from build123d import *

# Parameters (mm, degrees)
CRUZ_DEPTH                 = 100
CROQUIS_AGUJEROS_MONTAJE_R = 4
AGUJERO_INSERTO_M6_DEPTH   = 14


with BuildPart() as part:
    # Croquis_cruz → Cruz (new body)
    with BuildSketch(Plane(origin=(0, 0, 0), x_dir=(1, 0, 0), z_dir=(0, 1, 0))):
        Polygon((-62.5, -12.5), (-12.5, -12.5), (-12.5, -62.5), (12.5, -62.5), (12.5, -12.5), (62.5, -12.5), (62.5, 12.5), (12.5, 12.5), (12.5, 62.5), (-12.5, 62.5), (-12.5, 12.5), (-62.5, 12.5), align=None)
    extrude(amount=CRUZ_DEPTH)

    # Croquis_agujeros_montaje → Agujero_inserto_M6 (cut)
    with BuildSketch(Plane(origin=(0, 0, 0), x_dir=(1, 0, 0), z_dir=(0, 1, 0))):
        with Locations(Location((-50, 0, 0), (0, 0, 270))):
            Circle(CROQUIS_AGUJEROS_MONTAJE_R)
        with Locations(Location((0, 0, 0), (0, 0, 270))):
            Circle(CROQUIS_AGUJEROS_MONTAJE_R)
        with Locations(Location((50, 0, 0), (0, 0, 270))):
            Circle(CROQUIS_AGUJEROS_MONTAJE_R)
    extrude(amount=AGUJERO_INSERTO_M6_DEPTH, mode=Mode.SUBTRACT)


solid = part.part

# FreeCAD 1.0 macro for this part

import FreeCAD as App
import Part
import Sketcher
from FreeCAD import Vector

doc = App.newDocument("Part")
body = doc.addObject("PartDesign::Body", "Body")

# Sketch on XZ plane
sketch1 = body.newObject("Sketcher::SketchObject", "Sketch")
sketch1.AttachmentSupport = (doc.getObject("XZ_Plane"), [""])
sketch1.MapMode = "FlatFace"
sketch1.addGeometry([
    Part.LineSegment(Vector(-62, 12, 0), Vector(-12, 12, 0)),  # 0
    Part.LineSegment(Vector(-12, 12, 0), Vector(-12, 62, 0)),  # 1
    Part.LineSegment(Vector(-12, 62, 0), Vector(12, 62, 0)),  # 2
    Part.LineSegment(Vector(12, 62, 0), Vector(12, 12, 0)),  # 3
    Part.LineSegment(Vector(12, 12, 0), Vector(62, 12, 0)),  # 4
    Part.LineSegment(Vector(62, 12, 0), Vector(62, -12, 0)),  # 5
    Part.LineSegment(Vector(62, -12, 0), Vector(12, -12, 0)),  # 6
    Part.LineSegment(Vector(12, -12, 0), Vector(12, -62, 0)),  # 7
    Part.LineSegment(Vector(12, -62, 0), Vector(-12, -62, 0)),  # 8
    Part.LineSegment(Vector(-12, -62, 0), Vector(-12, -12, 0)),  # 9
    Part.LineSegment(Vector(-12, -12, 0), Vector(-62, -12, 0)),  # 10
    Part.LineSegment(Vector(-62, -12, 0), Vector(-62, 12, 0)),  # 11
], False)
sketch1.addConstraint([
    Sketcher.Constraint("Coincident", 0, 2, 1, 1),
    Sketcher.Constraint("Coincident", 1, 2, 2, 1),
    Sketcher.Constraint("Coincident", 2, 2, 3, 1),
    Sketcher.Constraint("Coincident", 3, 2, 4, 1),
    Sketcher.Constraint("Coincident", 4, 2, 5, 1),
    Sketcher.Constraint("Coincident", 5, 2, 6, 1),
    Sketcher.Constraint("Coincident", 6, 2, 7, 1),
    Sketcher.Constraint("Coincident", 7, 2, 8, 1),
    Sketcher.Constraint("Coincident", 8, 2, 9, 1),
    Sketcher.Constraint("Coincident", 9, 2, 10, 1),
    Sketcher.Constraint("Coincident", 10, 2, 11, 1),
    Sketcher.Constraint("Coincident", 11, 2, 0, 1),
    Sketcher.Constraint("Horizontal", 0),
    Sketcher.Constraint("Vertical", 1),
    Sketcher.Constraint("Horizontal", 2),
    Sketcher.Constraint("Vertical", 3),
    Sketcher.Constraint("Horizontal", 4),
    Sketcher.Constraint("Vertical", 5),
    Sketcher.Constraint("Horizontal", 6),
    Sketcher.Constraint("Vertical", 7),
    Sketcher.Constraint("Horizontal", 8),
    Sketcher.Constraint("Vertical", 9),
    Sketcher.Constraint("Horizontal", 10),
    Sketcher.Constraint("Vertical", 11),
    Sketcher.Constraint("Symmetric", 0, 2, 6, 2, -1, 1),
    Sketcher.Constraint("Symmetric", 2, 2, 8, 2, -1, 1),
    Sketcher.Constraint("Symmetric", 4, 2, 10, 2, -1, 1),
    Sketcher.Constraint("Symmetric", 0, 2, 3, 2, -2),
    Sketcher.Constraint("Equal", 10, 1),
    Sketcher.Constraint("Equal", 8, 5),
    Sketcher.Constraint("DistanceX", 0, 1, 0, 2, 50.0),
    Sketcher.Constraint("DistanceX", 2, 1, 2, 2, 25.0),
])
pad1 = body.newObject("PartDesign::Pad", "Pad")
pad1.Profile = sketch1
pad1.Length = 100
pad1.Reversed = True

# Sketch on XZ plane
sketch2 = body.newObject("Sketcher::SketchObject", "Sketch001")
sketch2.AttachmentSupport = (doc.getObject("XZ_Plane"), [""])
sketch2.MapMode = "FlatFace"
sketch2.addGeometry([
    Part.Circle(Vector(-50, 0, 0), Vector(0, 0, 1), 4),
    Part.Circle(Vector(0, 0, 0), Vector(0, 0, 1), 4),
    Part.Circle(Vector(50, 0, 0), Vector(0, 0, 1), 4),
], False)
sketch2.addConstraint([
    Sketcher.Constraint("Coincident", 1, 3, -1, 1),
    Sketcher.Constraint("Equal", 0, 1),
    Sketcher.Constraint("Equal", 1, 2),
    Sketcher.Constraint("Symmetric", 0, 3, 2, 3, -1, 1),
    Sketcher.Constraint("PointOnObject", 0, 3, -1),
    Sketcher.Constraint("Diameter", 0, 8.0),
    Sketcher.Constraint("DistanceX", 0, 3, -1, 1, 50.0),
])
pocket1 = body.newObject("PartDesign::Pocket", "Pocket")
pocket1.Profile = sketch2
pocket1.Length = 14

doc.recompute()
